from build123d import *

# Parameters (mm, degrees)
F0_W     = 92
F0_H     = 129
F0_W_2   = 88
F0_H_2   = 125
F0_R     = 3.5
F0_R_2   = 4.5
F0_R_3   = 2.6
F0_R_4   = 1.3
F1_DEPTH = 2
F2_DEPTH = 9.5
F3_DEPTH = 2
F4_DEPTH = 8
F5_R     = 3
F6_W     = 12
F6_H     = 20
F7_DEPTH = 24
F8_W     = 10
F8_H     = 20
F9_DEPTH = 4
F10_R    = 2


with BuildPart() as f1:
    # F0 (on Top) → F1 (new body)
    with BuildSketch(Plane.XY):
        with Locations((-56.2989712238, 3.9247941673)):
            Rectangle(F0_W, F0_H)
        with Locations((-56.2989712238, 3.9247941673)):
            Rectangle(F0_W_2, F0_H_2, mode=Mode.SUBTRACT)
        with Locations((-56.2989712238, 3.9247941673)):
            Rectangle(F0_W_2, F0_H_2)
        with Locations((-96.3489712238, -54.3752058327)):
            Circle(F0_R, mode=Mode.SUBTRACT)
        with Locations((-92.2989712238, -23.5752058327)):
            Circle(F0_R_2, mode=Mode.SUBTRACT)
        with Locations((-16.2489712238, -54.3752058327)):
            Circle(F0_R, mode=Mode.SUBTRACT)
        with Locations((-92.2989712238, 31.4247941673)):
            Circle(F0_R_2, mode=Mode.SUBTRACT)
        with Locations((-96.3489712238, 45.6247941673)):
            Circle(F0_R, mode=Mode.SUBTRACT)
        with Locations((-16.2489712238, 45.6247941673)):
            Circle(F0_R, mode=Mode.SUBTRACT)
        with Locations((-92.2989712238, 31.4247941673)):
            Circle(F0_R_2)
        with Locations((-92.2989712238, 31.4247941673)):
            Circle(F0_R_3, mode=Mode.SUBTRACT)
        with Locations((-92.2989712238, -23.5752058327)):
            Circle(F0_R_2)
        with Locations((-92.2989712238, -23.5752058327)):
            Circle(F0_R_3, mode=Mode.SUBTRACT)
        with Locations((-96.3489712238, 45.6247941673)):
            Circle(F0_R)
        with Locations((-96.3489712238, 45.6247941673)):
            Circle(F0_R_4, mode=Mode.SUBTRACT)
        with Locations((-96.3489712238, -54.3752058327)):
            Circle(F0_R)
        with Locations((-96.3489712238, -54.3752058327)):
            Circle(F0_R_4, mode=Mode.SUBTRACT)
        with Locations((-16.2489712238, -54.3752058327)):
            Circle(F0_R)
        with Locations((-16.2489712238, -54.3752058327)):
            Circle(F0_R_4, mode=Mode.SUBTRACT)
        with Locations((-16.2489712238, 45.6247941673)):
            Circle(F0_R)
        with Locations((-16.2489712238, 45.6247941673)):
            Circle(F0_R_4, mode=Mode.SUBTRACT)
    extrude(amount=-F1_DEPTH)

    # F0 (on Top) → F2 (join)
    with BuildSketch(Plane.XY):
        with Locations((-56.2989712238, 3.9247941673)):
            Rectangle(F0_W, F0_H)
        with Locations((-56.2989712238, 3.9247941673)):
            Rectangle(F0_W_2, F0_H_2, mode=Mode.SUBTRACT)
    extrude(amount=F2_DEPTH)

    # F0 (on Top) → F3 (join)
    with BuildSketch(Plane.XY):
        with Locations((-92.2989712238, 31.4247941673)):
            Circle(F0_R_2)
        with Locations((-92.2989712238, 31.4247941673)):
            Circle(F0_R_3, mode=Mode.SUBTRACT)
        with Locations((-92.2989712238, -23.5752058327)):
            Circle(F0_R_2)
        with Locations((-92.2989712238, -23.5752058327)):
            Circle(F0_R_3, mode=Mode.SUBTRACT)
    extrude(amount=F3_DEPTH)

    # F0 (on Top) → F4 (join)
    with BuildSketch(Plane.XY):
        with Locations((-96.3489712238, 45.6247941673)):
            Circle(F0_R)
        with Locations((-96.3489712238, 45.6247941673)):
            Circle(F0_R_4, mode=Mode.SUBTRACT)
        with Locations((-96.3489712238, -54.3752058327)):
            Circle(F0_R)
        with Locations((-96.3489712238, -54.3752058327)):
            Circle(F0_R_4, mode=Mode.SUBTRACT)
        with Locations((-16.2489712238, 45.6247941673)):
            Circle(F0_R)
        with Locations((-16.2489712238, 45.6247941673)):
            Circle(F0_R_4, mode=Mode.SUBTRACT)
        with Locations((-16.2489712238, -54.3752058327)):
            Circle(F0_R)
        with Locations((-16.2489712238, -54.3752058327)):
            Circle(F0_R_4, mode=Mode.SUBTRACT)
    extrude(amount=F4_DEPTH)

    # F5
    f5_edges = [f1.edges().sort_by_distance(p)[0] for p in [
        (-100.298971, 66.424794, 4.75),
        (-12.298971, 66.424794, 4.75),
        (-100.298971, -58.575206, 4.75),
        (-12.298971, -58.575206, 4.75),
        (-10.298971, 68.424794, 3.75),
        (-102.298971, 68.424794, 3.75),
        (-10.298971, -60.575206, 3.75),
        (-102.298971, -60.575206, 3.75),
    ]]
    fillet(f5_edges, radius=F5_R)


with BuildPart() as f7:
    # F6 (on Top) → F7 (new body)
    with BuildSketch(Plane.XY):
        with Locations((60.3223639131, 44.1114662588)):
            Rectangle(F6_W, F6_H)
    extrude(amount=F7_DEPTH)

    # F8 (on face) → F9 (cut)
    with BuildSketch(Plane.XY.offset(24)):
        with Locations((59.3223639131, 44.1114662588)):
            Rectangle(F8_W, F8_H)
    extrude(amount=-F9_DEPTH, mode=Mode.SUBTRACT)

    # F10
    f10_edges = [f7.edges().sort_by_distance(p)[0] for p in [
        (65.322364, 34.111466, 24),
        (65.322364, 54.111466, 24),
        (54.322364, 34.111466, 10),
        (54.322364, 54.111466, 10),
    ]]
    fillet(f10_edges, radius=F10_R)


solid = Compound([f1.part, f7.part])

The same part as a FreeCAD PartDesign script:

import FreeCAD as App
import Part
import Sketcher

V = App.Vector
Q = App.Units.Quantity


def edges_at(feature, points):
    """Names of the edges that pass closest to the given points."""
    edges = feature.Shape.Edges
    near = lambda p: min(range(len(edges)), key=lambda i: edges[i].distToShape(Part.Vertex(*p))[0])
    return sorted({f"Edge{near(p) + 1}" for p in points})

doc = App.newDocument("Part")
params = doc.addObject("Spreadsheet::Sheet", "Params")
for row, (alias, value) in enumerate([
    ("sketch1_diameter", "2.6 mm"),
    ("sketch1_diameter2", "5.2 mm"),
    ("sketch1_width", "92 mm"),
    ("sketch1_height", "129 mm"),
    ("pad1_length", "2 mm"),
    ("sketch2_width", "92 mm"),
    ("sketch2_width2", "88 mm"),
    ("sketch2_height", "129 mm"),
    ("sketch2_height2", "125 mm"),
    ("pad2_length", "9.5 mm"),
    ("sketch3_diameter", "9 mm"),
    ("sketch3_diameter2", "5.2 mm"),
    ("pad3_length", "2 mm"),
    ("sketch4_diameter", "7 mm"),
    ("sketch4_diameter2", "2.6 mm"),
    ("pad4_length", "8 mm"),
    ("fillet_radius", "3 mm"),
    ("sketch5_width", "12 mm"),
    ("sketch5_height", "20 mm"),
    ("pad5_length", "24 mm"),
    ("sketch6_width", "10 mm"),
    ("sketch6_height", "20 mm"),
    ("pocket1_length", "4 mm"),
    ("fillet2_radius", "2 mm"),
], start=1):
    params.set(f"A{row}", alias)
    params.set(f"B{row}", "=" + value)
    params.setAlias(f"B{row}", alias)

body = doc.addObject("PartDesign::Body", "Body")

sketch1 = body.newObject("Sketcher::SketchObject", "Sketch")
sketch1.AttachmentSupport = (doc.getObject("XY_Plane"), [""])
sketch1.MapMode = "FlatFace"
sketch1.addGeometry([
    Part.LineSegment(V(-102.3, 68.4, 0), V(-102.3, -60.6, 0)),
    Part.LineSegment(V(-102.3, -60.6, 0), V(-10.3, -60.6, 0)),
    Part.LineSegment(V(-10.3, -60.6, 0), V(-10.3, 68.4, 0)),
    Part.LineSegment(V(-10.3, 68.4, 0), V(-102.3, 68.4, 0)),
    Part.Circle(V(-96.3, -54.4, 0), V(0, 0, 1), 1.3),
    Part.Circle(V(-92.3, -23.6, 0), V(0, 0, 1), 2.6),
    Part.Circle(V(-16.2, -54.4, 0), V(0, 0, 1), 1.3),
    Part.Circle(V(-92.3, 31.4, 0), V(0, 0, 1), 2.6),
    Part.Circle(V(-96.3, 45.6, 0), V(0, 0, 1), 1.3),
    Part.Circle(V(-16.2, 45.6, 0), V(0, 0, 1), 1.3),
], False)
sketch1.addConstraint([
    Sketcher.Constraint("Coincident", 0, 2, 1, 1),
    Sketcher.Constraint("Coincident", 1, 2, 2, 1),
    Sketcher.Constraint("Coincident", 2, 2, 3, 1),
    Sketcher.Constraint("Coincident", 3, 2, 0, 1),
    Sketcher.Constraint("Vertical", 0),
    Sketcher.Constraint("Horizontal", 1),
    Sketcher.Constraint("Vertical", 2),
    Sketcher.Constraint("Horizontal", 3),
    Sketcher.Constraint("Equal", 4, 6),
    Sketcher.Constraint("Equal", 5, 7),
    Sketcher.Constraint("Equal", 6, 8),
    Sketcher.Constraint("Equal", 8, 9),
    Sketcher.Constraint("Horizontal", 4, 3, 6, 3),
    Sketcher.Constraint("Horizontal", 8, 3, 9, 3),
    Sketcher.Constraint("Vertical", 5, 3, 7, 3),
    Sketcher.Constraint("Vertical", 4, 3, 8, 3),
    Sketcher.Constraint("Vertical", 6, 3, 9, 3),
    Sketcher.Constraint("Diameter", 4, Q("2.6 mm")),
    Sketcher.Constraint("Diameter", 5, Q("5.2 mm")),
    Sketcher.Constraint("DistanceX", 1, 1, 1, 2, Q("92 mm")),
    Sketcher.Constraint("DistanceY", 0, 2, 0, 1, Q("129 mm")),
    Sketcher.Constraint("DistanceY", 5, 3, 7, 3, Q("55 mm")),
    Sketcher.Constraint("DistanceY", 4, 3, 8, 3, Q("100 mm")),
    Sketcher.Constraint("DistanceX", 0, 2, 5, 3, Q("10 mm")),
    Sketcher.Constraint("DistanceY", 0, 2, 5, 3, Q("37 mm")),
    Sketcher.Constraint("DistanceY", 4, 3, 5, 3, Q("30.8 mm")),
    Sketcher.Constraint("DistanceX", 4, 3, 6, 3, Q("80.1 mm")),
    Sketcher.Constraint("DistanceX", 4, 3, 5, 3, Q("4.05 mm")),
    Sketcher.Constraint("DistanceX", 4, 3, -1, 1, Q("96.348971 mm")),
    Sketcher.Constraint("DistanceY", 4, 3, -1, 1, Q("54.375206 mm")),
])
sketch1.setExpression("Constraints[17]", "Params.sketch1_diameter")
sketch1.setExpression("Constraints[18]", "Params.sketch1_diameter2")
sketch1.setExpression("Constraints[19]", "Params.sketch1_width")
sketch1.setExpression("Constraints[20]", "Params.sketch1_height")
pad1 = body.newObject("PartDesign::Pad", "Pad")
pad1.Profile = sketch1
pad1.setExpression("Length", "Params.pad1_length")
pad1.Reversed = True

sketch2 = body.newObject("Sketcher::SketchObject", "Sketch001")
sketch2.AttachmentSupport = (doc.getObject("XY_Plane"), [""])
sketch2.MapMode = "FlatFace"
sketch2.addGeometry([
    Part.LineSegment(V(-102, 68, 0), V(-102, -61, 0)),
    Part.LineSegment(V(-102, -61, 0), V(-10, -61, 0)),
    Part.LineSegment(V(-10, -61, 0), V(-10, 68, 0)),
    Part.LineSegment(V(-10, 68, 0), V(-102, 68, 0)),
    Part.LineSegment(V(-12, -59, 0), V(-100, -59, 0)),
    Part.LineSegment(V(-100, -59, 0), V(-100, 66, 0)),
    Part.LineSegment(V(-100, 66, 0), V(-12, 66, 0)),
    Part.LineSegment(V(-12, 66, 0), V(-12, -59, 0)),
], False)
sketch2.addConstraint([
    Sketcher.Constraint("Coincident", 0, 2, 1, 1),
    Sketcher.Constraint("Coincident", 1, 2, 2, 1),
    Sketcher.Constraint("Coincident", 2, 2, 3, 1),
    Sketcher.Constraint("Coincident", 3, 2, 0, 1),
    Sketcher.Constraint("Coincident", 4, 2, 5, 1),
    Sketcher.Constraint("Coincident", 5, 2, 6, 1),
    Sketcher.Constraint("Coincident", 6, 2, 7, 1),
    Sketcher.Constraint("Coincident", 7, 2, 4, 1),
    Sketcher.Constraint("Vertical", 0),
    Sketcher.Constraint("Horizontal", 1),
    Sketcher.Constraint("Vertical", 2),
    Sketcher.Constraint("Horizontal", 3),
    Sketcher.Constraint("Horizontal", 4),
    Sketcher.Constraint("Vertical", 5),
    Sketcher.Constraint("Horizontal", 6),
    Sketcher.Constraint("Vertical", 7),
    Sketcher.Constraint("DistanceX", 1, 1, 1, 2, Q("92 mm")),
    Sketcher.Constraint("DistanceX", 4, 2, 4, 1, Q("88 mm")),
    Sketcher.Constraint("DistanceY", 0, 2, 0, 1, Q("129 mm")),
    Sketcher.Constraint("DistanceY", 5, 1, 5, 2, Q("125 mm")),
    Sketcher.Constraint("DistanceX", 0, 2, 4, 2, Q("2 mm")),
    Sketcher.Constraint("DistanceY", 0, 2, 4, 2, Q("2 mm")),
    Sketcher.Constraint("DistanceX", 0, 2, -1, 1, Q("102.298971 mm")),
    Sketcher.Constraint("DistanceY", 0, 2, -1, 1, Q("60.575206 mm")),
])
sketch2.setExpression("Constraints[16]", "Params.sketch2_width")
sketch2.setExpression("Constraints[17]", "Params.sketch2_width2")
sketch2.setExpression("Constraints[18]", "Params.sketch2_height")
sketch2.setExpression("Constraints[19]", "Params.sketch2_height2")
pad2 = body.newObject("PartDesign::Pad", "Pad001")
pad2.Profile = sketch2
pad2.setExpression("Length", "Params.pad2_length")

sketch3 = body.newObject("Sketcher::SketchObject", "Sketch002")
sketch3.AttachmentSupport = (doc.getObject("XY_Plane"), [""])
sketch3.MapMode = "FlatFace"
sketch3.addGeometry([
    Part.Circle(V(-92.3, 31.4, 0), V(0, 0, 1), 4.5),
    Part.Circle(V(-92.3, 31.4, 0), V(0, 0, 1), 2.6),
    Part.Circle(V(-92.3, -23.6, 0), V(0, 0, 1), 4.5),
    Part.Circle(V(-92.3, -23.6, 0), V(0, 0, 1), 2.6),
], False)
sketch3.addConstraint([
    Sketcher.Constraint("Coincident", 1, 3, 0, 3),
    Sketcher.Constraint("Coincident", 3, 3, 2, 3),
    Sketcher.Constraint("Equal", 0, 2),
    Sketcher.Constraint("Equal", 1, 3),
    Sketcher.Constraint("Vertical", 1, 3, 2, 3),
    Sketcher.Constraint("Diameter", 0, Q("9 mm")),
    Sketcher.Constraint("Diameter", 1, Q("5.2 mm")),
    Sketcher.Constraint("DistanceY", 2, 3, 0, 3, Q("55 mm")),
    Sketcher.Constraint("DistanceX", 0, 3, -1, 1, Q("92.298971 mm")),
    Sketcher.Constraint("DistanceY", -1, 1, 0, 3, Q("31.424794 mm")),
])
sketch3.setExpression("Constraints[5]", "Params.sketch3_diameter")
sketch3.setExpression("Constraints[6]", "Params.sketch3_diameter2")
pad3 = body.newObject("PartDesign::Pad", "Pad002")
pad3.Profile = sketch3
pad3.setExpression("Length", "Params.pad3_length")

sketch4 = body.newObject("Sketcher::SketchObject", "Sketch003")
sketch4.AttachmentSupport = (doc.getObject("XY_Plane"), [""])
sketch4.MapMode = "FlatFace"
sketch4.addGeometry([
    Part.Circle(V(-96.3, 45.6, 0), V(0, 0, 1), 3.5),
    Part.Circle(V(-96.3, 45.6, 0), V(0, 0, 1), 1.3),
    Part.Circle(V(-96.3, -54.4, 0), V(0, 0, 1), 3.5),
    Part.Circle(V(-96.3, -54.4, 0), V(0, 0, 1), 1.3),
    Part.Circle(V(-16.2, 45.6, 0), V(0, 0, 1), 3.5),
    Part.Circle(V(-16.2, 45.6, 0), V(0, 0, 1), 1.3),
    Part.Circle(V(-16.2, -54.4, 0), V(0, 0, 1), 3.5),
    Part.Circle(V(-16.2, -54.4, 0), V(0, 0, 1), 1.3),
], False)
sketch4.addConstraint([
    Sketcher.Constraint("Coincident", 1, 3, 0, 3),
    Sketcher.Constraint("Coincident", 3, 3, 2, 3),
    Sketcher.Constraint("Coincident", 5, 3, 4, 3),
    Sketcher.Constraint("Coincident", 7, 3, 6, 3),
    Sketcher.Constraint("Equal", 0, 2),
    Sketcher.Constraint("Equal", 1, 3),
    Sketcher.Constraint("Equal", 2, 4),
    Sketcher.Constraint("Equal", 3, 5),
    Sketcher.Constraint("Equal", 4, 6),
    Sketcher.Constraint("Equal", 5, 7),
    Sketcher.Constraint("Horizontal", 1, 3, 4, 3),
    Sketcher.Constraint("Horizontal", 3, 3, 6, 3),
    Sketcher.Constraint("Vertical", 1, 3, 2, 3),
    Sketcher.Constraint("Vertical", 5, 3, 6, 3),
    Sketcher.Constraint("Diameter", 0, Q("7 mm")),
    Sketcher.Constraint("Diameter", 1, Q("2.6 mm")),
    Sketcher.Constraint("DistanceY", 2, 3, 0, 3, Q("100 mm")),
    Sketcher.Constraint("DistanceX", 0, 3, 4, 3, Q("80.1 mm")),
    Sketcher.Constraint("DistanceX", 0, 3, -1, 1, Q("96.348971 mm")),
    Sketcher.Constraint("DistanceY", -1, 1, 0, 3, Q("45.624794 mm")),
])
sketch4.setExpression("Constraints[14]", "Params.sketch4_diameter")
sketch4.setExpression("Constraints[15]", "Params.sketch4_diameter2")
pad4 = body.newObject("PartDesign::Pad", "Pad003")
pad4.Profile = sketch4
pad4.setExpression("Length", "Params.pad4_length")
doc.recompute()

fillet = body.newObject("PartDesign::Fillet", "Fillet")
fillet.Base = (pad4, edges_at(pad4, [
    (-100.299, 66.425, 4.75),
    (-12.299, 66.425, 4.75),
    (-100.299, -58.575, 4.75),
    (-12.299, -58.575, 4.75),
    (-10.299, 68.425, 3.75),
    (-102.299, 68.425, 3.75),
    (-10.299, -60.575, 3.75),
    (-102.299, -60.575, 3.75),
]))
fillet.setExpression("Radius", "Params.fillet_radius")
body2 = doc.addObject("PartDesign::Body", "Body001")

sketch5 = body2.newObject("Sketcher::SketchObject", "Sketch004")
sketch5.AttachmentSupport = (doc.getObject("XY_Plane001"), [""])
sketch5.MapMode = "FlatFace"
sketch5.addGeometry([
    Part.LineSegment(V(54, 54, 0), V(54, 34, 0)),
    Part.LineSegment(V(54, 34, 0), V(66, 34, 0)),
    Part.LineSegment(V(66, 34, 0), V(66, 54, 0)),
    Part.LineSegment(V(66, 54, 0), V(54, 54, 0)),
], False)
sketch5.addConstraint([
    Sketcher.Constraint("Coincident", 0, 2, 1, 1),
    Sketcher.Constraint("Coincident", 1, 2, 2, 1),
    Sketcher.Constraint("Coincident", 2, 2, 3, 1),
    Sketcher.Constraint("Coincident", 3, 2, 0, 1),
    Sketcher.Constraint("Vertical", 0),
    Sketcher.Constraint("Horizontal", 1),
    Sketcher.Constraint("Vertical", 2),
    Sketcher.Constraint("Horizontal", 3),
    Sketcher.Constraint("DistanceX", 1, 1, 1, 2, Q("12 mm")),
    Sketcher.Constraint("DistanceY", 0, 2, 0, 1, Q("20 mm")),
    Sketcher.Constraint("DistanceX", -1, 1, 0, 2, Q("54.322364 mm")),
    Sketcher.Constraint("DistanceY", -1, 1, 0, 2, Q("34.111466 mm")),
])
sketch5.setExpression("Constraints[8]", "Params.sketch5_width")
sketch5.setExpression("Constraints[9]", "Params.sketch5_height")
pad5 = body2.newObject("PartDesign::Pad", "Pad004")
pad5.Profile = sketch5
pad5.setExpression("Length", "Params.pad5_length")

sketch6 = body2.newObject("Sketcher::SketchObject", "Sketch005")
sketch6.AttachmentSupport = (doc.getObject("XY_Plane001"), [""])
sketch6.MapMode = "FlatFace"
sketch6.AttachmentOffset = App.Placement(V(0, 0, 24), App.Rotation())
sketch6.addGeometry([
    Part.LineSegment(V(54, 54, 0), V(54, 34, 0)),
    Part.LineSegment(V(54, 34, 0), V(64, 34, 0)),
    Part.LineSegment(V(64, 34, 0), V(64, 54, 0)),
    Part.LineSegment(V(64, 54, 0), V(54, 54, 0)),
], False)
sketch6.addConstraint([
    Sketcher.Constraint("Coincident", 0, 2, 1, 1),
    Sketcher.Constraint("Coincident", 1, 2, 2, 1),
    Sketcher.Constraint("Coincident", 2, 2, 3, 1),
    Sketcher.Constraint("Coincident", 3, 2, 0, 1),
    Sketcher.Constraint("Vertical", 0),
    Sketcher.Constraint("Horizontal", 1),
    Sketcher.Constraint("Vertical", 2),
    Sketcher.Constraint("Horizontal", 3),
    Sketcher.Constraint("DistanceX", 1, 1, 1, 2, Q("10 mm")),
    Sketcher.Constraint("DistanceY", 0, 2, 0, 1, Q("20 mm")),
    Sketcher.Constraint("DistanceX", -1, 1, 0, 2, Q("54.322364 mm")),
    Sketcher.Constraint("DistanceY", -1, 1, 0, 2, Q("34.111466 mm")),
])
sketch6.setExpression("Constraints[8]", "Params.sketch6_width")
sketch6.setExpression("Constraints[9]", "Params.sketch6_height")
pocket1 = body2.newObject("PartDesign::Pocket", "Pocket")
pocket1.Profile = sketch6
pocket1.setExpression("Length", "Params.pocket1_length")
doc.recompute()

fillet2 = body2.newObject("PartDesign::Fillet", "Fillet001")
fillet2.Base = (pocket1, edges_at(pocket1, [
    (65.322, 34.111, 24),
    (65.322, 54.111, 24),
    (54.322, 34.111, 10),
    (54.322, 54.111, 10),
]))
fillet2.setExpression("Radius", "Params.fillet2_radius")

doc.recompute()
